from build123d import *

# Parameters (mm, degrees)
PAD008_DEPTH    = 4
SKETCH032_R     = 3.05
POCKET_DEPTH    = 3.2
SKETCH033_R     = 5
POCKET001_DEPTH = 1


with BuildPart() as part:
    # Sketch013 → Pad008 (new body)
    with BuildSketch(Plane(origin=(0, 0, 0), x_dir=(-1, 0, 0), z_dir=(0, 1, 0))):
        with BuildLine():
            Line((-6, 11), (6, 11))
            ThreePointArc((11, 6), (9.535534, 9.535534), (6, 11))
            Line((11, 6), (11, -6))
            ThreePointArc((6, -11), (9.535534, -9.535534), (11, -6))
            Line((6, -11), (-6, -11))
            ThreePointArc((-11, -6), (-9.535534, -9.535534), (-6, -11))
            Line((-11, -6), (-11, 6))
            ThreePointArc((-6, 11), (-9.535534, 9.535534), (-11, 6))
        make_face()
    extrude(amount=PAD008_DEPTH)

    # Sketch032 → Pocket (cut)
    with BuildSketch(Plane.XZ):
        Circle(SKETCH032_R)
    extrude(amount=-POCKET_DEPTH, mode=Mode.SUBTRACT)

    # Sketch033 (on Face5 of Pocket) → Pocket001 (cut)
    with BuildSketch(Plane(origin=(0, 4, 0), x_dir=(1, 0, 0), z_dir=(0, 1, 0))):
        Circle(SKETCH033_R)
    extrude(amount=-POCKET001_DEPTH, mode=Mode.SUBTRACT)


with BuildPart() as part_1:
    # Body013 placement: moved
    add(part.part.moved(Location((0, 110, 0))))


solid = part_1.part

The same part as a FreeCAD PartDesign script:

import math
import FreeCAD as App
import Part
import Sketcher

V = App.Vector
Q = App.Units.Quantity

doc = App.newDocument("Part")
body = doc.addObject("PartDesign::Body", "Body")

# Sketch on XZ plane
sketch1 = doc.addObject("Sketcher::SketchObject", "Sketch")
body.addObject(sketch1)
sketch1.AttachmentSupport = (doc.XZ_Plane, [""])
sketch1.MapMode = "FlatFace"
sketch1.addGeometry([
    Part.LineSegment(V(-6, 11, 0), V(6, 11, 0)),  # 0
    Part.ArcOfCircle(Part.Circle(V(6, 6, 0), V(0, 0, 1), 5), math.radians(0), math.radians(90)),  # 1
    Part.LineSegment(V(11, 6, 0), V(11, -6, 0)),  # 2
    Part.ArcOfCircle(Part.Circle(V(6, -6, 0), V(0, 0, 1), 5), math.radians(-90), math.radians(0)),  # 3
    Part.LineSegment(V(6, -11, 0), V(-6, -11, 0)),  # 4
    Part.ArcOfCircle(Part.Circle(V(-6, -6, 0), V(0, 0, 1), 5), math.radians(180), math.radians(270)),  # 5
    Part.LineSegment(V(-11, -6, 0), V(-11, 6, 0)),  # 6
    Part.ArcOfCircle(Part.Circle(V(-6, 6, 0), V(0, 0, 1), 5), math.radians(90), math.radians(180)),  # 7
], False)
sketch1.addConstraint([
    Sketcher.Constraint("Tangent", 0, 2, 1, 2),
    Sketcher.Constraint("Tangent", 1, 1, 2, 1),
    Sketcher.Constraint("Tangent", 2, 2, 3, 2),
    Sketcher.Constraint("Tangent", 3, 1, 4, 1),
    Sketcher.Constraint("Tangent", 4, 2, 5, 2),
    Sketcher.Constraint("Tangent", 5, 1, 6, 1),
    Sketcher.Constraint("Tangent", 6, 2, 7, 2),
    Sketcher.Constraint("Tangent", 7, 1, 0, 1),
    Sketcher.Constraint("Horizontal", 0),
    Sketcher.Constraint("Vertical", 2),
    Sketcher.Constraint("Horizontal", 4),
    Sketcher.Constraint("Vertical", 6),
    Sketcher.Constraint("Equal", 1, 3),
    Sketcher.Constraint("Equal", 3, 5),
    Sketcher.Constraint("Equal", 5, 7),
    Sketcher.Constraint("Symmetric", 1, 3, 5, 3, -1, 1),
    Sketcher.Constraint("Equal", 4, 2),
    Sketcher.Constraint("Radius", 1, Q("5 mm")),
    Sketcher.Constraint("DistanceX", 0, 1, 0, 2, Q("12 mm")),
])
pad1 = doc.addObject("PartDesign::Pad", "Pad")
body.addObject(pad1)
pad1.Profile = sketch1
pad1.Length = 4
pad1.Reversed = True

# Sketch on XZ plane
sketch2 = doc.addObject("Sketcher::SketchObject", "Sketch001")
body.addObject(sketch2)
sketch2.AttachmentSupport = (doc.XZ_Plane, [""])
sketch2.MapMode = "FlatFace"
sketch2.addGeometry(Part.Circle(V(0, 0, 0), V(0, 0, 1), 3), False)
sketch2.addConstraint([
    Sketcher.Constraint("Coincident", 0, 3, -1, 1),
    Sketcher.Constraint("Diameter", 0, Q("6.1 mm")),
])
pocket1 = doc.addObject("PartDesign::Pocket", "Pocket")
body.addObject(pocket1)
pocket1.Profile = sketch2
pocket1.Length = 3.2

# Sketch on XZ plane
sketch3 = doc.addObject("Sketcher::SketchObject", "Sketch002")
body.addObject(sketch3)
sketch3.AttachmentSupport = (doc.XZ_Plane, [""])
sketch3.MapMode = "FlatFace"
sketch3.AttachmentOffset = App.Placement(V(0, 0, -4), App.Rotation())
sketch3.addGeometry(Part.Circle(V(0, 0, 0), V(0, 0, 1), 5), False)
sketch3.addConstraint([
    Sketcher.Constraint("Coincident", 0, 3, -1, 1),
    Sketcher.Constraint("Diameter", 0, Q("10 mm")),
])
pocket2 = doc.addObject("PartDesign::Pocket", "Pocket001")
body.addObject(pocket2)
pocket2.Profile = sketch3
pocket2.Length = 1
pocket2.Reversed = True
body2 = doc.addObject("PartDesign::Body", "Body001")
doc.recompute()

body.Placement = App.Placement(V(0, 110, 0), App.Rotation(V(0, 0, 1), 0))
boolean = doc.addObject("PartDesign::Boolean", "Boolean")
body2.addObject(boolean)
boolean.Type = "Fuse"
boolean.addObjects([body])

doc.recompute()
